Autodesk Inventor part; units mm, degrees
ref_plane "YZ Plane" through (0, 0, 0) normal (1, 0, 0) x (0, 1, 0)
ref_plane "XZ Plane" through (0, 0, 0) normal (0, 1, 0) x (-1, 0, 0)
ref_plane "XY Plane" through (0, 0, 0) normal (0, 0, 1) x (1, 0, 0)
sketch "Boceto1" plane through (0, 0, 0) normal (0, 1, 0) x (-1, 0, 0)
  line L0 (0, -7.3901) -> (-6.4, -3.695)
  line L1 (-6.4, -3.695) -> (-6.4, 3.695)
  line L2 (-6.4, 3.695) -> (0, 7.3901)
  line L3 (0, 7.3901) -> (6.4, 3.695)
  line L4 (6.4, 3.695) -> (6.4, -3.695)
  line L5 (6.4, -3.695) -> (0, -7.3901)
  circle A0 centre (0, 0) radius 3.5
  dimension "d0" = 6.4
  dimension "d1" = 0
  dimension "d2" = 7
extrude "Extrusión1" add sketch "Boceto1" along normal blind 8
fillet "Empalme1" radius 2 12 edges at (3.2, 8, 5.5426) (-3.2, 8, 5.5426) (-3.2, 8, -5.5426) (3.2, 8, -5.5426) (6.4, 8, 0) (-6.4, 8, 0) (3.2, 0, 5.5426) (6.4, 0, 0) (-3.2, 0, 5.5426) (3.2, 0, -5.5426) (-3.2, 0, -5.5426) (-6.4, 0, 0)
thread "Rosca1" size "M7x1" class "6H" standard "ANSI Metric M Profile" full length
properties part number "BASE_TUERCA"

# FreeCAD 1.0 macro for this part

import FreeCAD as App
import Part
import Sketcher
from FreeCAD import Vector
Q = App.Units.Quantity


def edges_at(feature, points):
    """Names of the edges that pass closest to the given points."""
    edges = feature.Shape.Edges
    near = lambda p: min(range(len(edges)), key=lambda i: edges[i].distToShape(Part.Vertex(*p))[0])
    return sorted({f"Edge{near(p) + 1}" for p in points})


def add_polygon(sketch, points):
    """Adds a closed chain of lines whose ends are joined by coincident constraints."""
    first, n = sketch.GeometryCount, len(points)
    for a, b in zip(points, points[1:] + points[:1]):
        sketch.addGeometry(Part.LineSegment(App.Vector(*a, 0), App.Vector(*b, 0)), False)
    for i in range(n):
        sketch.addConstraint(Sketcher.Constraint("Coincident", first + i, 2, first + (i + 1) % n, 1))

doc = App.newDocument("Part")
params = doc.addObject("Spreadsheet::Sheet", "Params")
for row, (alias, value) in enumerate([
    ("sketch1_diameter", "7 mm"),
    ("sketch1_height", "7.39 mm"),
    ("pad1_length", "8 mm"),
    ("fillet_radius", "2 mm"),
], start=1):
    params.set(f"A{row}", alias)
    params.set(f"B{row}", "=" + value)
    params.setAlias(f"B{row}", alias)

body = doc.addObject("PartDesign::Body", "Body")

# Sketch on XZ plane
sketch1 = doc.addObject("Sketcher::SketchObject", "Sketch")
body.addObject(sketch1)
sketch1.AttachmentSupport = (doc.XZ_Plane, [""])
sketch1.MapMode = "FlatFace"
add_polygon(sketch1, [(6.4, -3.695), (0, -7.3901), (-6.4, -3.695), (-6.4, 3.695), (0, 7.3901), (6.4, 3.695)])  # lines 0-5
sketch1.addGeometry(Part.Circle(Vector(0, 0, 0), Vector(0, 0, 1), 3.5), False)  # 6
sketch1.addConstraint([
    Sketcher.Constraint("Vertical", 2),
    Sketcher.Constraint("Vertical", 5),
    Sketcher.Constraint("Coincident", 6, 3, -1, 1),
    Sketcher.Constraint("Symmetric", 0, 2, 3, 2, -1, 1),
    Sketcher.Constraint("Symmetric", 1, 2, 4, 2, -1, 1),
    Sketcher.Constraint("PointOnObject", 0, 2, -2),
    Sketcher.Constraint("Parallel", 0, 3),
    Sketcher.Constraint("Horizontal", 2, 2, 4, 2),
    Sketcher.Constraint("Diameter", 6, 7.0),
    Sketcher.Constraint("DistanceX", 1, 2, -1, 1, 6.4),
    Sketcher.Constraint("Angle", 0, Q("-149.9996 deg")),
    Sketcher.Constraint("DistanceY", 2, 1, 2, 2, 7.39),
])
sketch1.setExpression("Constraints[14]", "Params.sketch1_diameter")
sketch1.setExpression("Constraints[17]", "Params.sketch1_height")
pad1 = doc.addObject("PartDesign::Pad", "Pad")
body.addObject(pad1)
pad1.Profile = sketch1
pad1.setExpression("Length", "Params.pad1_length")
pad1.Reversed = True
doc.recompute()

fillet = doc.addObject("PartDesign::Fillet", "Fillet")
body.addObject(fillet)
fillet.Base = (pad1, edges_at(pad1, [
    (3.2, 8, 5.543),
    (-3.2, 8, 5.543),
    (-3.2, 8, -5.543),
    (3.2, 8, -5.543),
    (6.4, 8, 0),
    (-6.4, 8, 0),
    (3.2, 0, 5.543),
    (6.4, 0, 0),
    (-3.2, 0, 5.543),
    (3.2, 0, -5.543),
    (-3.2, 0, -5.543),
    (-6.4, 0, 0),
]))
fillet.setExpression("Radius", "Params.fillet_radius")

doc.recompute()
